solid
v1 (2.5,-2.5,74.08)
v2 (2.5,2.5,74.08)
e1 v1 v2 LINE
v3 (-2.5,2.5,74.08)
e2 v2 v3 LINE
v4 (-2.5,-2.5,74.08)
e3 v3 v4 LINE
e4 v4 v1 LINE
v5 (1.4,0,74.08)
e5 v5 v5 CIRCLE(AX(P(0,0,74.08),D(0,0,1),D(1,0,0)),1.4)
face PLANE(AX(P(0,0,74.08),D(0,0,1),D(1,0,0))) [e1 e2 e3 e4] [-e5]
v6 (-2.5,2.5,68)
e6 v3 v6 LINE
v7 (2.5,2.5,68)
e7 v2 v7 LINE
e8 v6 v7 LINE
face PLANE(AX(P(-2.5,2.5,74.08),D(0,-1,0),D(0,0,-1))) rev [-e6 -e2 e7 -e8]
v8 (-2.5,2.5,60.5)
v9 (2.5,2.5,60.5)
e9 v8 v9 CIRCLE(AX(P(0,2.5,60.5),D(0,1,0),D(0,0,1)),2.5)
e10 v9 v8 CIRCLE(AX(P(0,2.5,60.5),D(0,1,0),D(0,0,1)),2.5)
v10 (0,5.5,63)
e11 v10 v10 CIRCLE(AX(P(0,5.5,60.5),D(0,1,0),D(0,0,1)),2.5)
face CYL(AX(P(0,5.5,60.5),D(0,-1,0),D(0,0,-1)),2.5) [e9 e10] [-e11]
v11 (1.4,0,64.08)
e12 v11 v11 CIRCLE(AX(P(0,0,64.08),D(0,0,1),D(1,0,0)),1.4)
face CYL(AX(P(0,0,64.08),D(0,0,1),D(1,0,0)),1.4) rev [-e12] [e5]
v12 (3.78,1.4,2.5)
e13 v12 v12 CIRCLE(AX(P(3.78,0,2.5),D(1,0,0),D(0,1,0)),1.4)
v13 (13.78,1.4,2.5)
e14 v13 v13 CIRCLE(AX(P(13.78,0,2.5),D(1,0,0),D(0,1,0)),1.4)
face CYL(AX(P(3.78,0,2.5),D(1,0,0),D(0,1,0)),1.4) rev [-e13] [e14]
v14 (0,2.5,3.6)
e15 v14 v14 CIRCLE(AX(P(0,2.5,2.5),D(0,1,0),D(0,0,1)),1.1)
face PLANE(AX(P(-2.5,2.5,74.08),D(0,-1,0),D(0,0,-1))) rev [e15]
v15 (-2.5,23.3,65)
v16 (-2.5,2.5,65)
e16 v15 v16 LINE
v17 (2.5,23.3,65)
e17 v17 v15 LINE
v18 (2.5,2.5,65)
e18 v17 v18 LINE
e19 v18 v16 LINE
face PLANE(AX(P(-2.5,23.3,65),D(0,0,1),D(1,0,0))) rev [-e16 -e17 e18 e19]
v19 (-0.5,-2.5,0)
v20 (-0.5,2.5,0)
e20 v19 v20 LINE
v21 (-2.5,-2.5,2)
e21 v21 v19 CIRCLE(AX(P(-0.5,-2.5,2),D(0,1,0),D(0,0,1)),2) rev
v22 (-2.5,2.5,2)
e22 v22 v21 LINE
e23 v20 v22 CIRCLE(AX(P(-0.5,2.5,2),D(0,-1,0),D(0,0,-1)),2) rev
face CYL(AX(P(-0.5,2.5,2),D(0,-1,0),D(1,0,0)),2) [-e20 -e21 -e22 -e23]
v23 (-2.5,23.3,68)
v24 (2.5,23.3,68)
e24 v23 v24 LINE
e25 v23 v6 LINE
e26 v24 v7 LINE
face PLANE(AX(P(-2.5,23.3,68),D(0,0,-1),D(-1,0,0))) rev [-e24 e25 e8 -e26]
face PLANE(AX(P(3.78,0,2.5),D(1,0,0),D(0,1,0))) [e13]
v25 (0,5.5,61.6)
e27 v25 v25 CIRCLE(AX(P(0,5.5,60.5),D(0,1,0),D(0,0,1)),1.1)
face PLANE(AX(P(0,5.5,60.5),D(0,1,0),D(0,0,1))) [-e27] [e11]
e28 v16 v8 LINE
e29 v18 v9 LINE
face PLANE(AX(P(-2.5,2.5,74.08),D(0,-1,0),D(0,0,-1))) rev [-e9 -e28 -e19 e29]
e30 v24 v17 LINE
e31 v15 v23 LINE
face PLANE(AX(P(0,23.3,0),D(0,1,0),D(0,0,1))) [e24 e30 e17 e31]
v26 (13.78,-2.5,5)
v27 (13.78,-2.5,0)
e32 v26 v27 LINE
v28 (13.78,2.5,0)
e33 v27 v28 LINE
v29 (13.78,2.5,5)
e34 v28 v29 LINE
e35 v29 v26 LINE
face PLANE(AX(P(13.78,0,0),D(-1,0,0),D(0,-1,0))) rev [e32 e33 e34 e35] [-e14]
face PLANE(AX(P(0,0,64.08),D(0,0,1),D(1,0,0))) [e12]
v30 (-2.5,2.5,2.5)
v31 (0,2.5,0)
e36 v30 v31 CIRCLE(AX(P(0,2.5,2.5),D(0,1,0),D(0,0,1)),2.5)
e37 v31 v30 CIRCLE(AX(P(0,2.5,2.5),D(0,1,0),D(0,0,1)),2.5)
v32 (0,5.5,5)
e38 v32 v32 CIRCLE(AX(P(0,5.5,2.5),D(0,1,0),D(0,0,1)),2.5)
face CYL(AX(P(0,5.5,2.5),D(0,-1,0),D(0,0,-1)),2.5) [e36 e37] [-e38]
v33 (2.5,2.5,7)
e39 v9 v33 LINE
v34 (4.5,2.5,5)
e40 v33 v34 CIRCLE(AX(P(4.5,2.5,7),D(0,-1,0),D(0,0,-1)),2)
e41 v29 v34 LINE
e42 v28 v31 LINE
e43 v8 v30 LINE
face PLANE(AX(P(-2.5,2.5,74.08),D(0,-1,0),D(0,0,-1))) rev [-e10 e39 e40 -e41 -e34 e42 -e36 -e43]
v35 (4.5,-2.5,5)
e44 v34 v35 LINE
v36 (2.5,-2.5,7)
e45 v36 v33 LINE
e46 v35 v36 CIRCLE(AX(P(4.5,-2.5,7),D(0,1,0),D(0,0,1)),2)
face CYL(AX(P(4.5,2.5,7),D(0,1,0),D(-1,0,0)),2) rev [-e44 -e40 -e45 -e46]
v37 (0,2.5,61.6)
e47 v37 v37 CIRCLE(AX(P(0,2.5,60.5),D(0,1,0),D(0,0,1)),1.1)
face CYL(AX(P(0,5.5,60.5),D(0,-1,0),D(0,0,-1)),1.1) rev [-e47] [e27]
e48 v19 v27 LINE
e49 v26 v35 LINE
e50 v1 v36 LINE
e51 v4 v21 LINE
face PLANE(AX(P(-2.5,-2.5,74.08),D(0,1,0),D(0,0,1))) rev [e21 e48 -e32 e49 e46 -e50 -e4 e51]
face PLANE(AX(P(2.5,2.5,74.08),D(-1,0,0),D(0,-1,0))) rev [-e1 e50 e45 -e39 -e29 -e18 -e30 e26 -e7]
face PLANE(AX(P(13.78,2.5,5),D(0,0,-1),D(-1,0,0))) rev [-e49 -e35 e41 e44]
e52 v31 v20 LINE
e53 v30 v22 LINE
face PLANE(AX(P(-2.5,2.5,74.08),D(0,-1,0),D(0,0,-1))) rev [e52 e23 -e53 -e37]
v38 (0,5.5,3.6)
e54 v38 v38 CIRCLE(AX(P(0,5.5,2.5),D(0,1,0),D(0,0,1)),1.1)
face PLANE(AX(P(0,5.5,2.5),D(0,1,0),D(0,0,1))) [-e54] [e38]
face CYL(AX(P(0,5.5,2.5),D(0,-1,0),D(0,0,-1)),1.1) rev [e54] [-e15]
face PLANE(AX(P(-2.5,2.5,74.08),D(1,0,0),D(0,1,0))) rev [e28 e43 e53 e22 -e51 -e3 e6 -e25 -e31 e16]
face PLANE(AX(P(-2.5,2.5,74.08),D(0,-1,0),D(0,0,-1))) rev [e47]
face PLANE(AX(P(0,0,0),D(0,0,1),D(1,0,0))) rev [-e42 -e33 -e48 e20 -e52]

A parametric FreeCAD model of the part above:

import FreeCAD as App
import Part
import Sketcher


def edges_at(feature, points):
    """Names of the edges that pass closest to the given points."""
    edges = feature.Shape.Edges
    near = lambda p: min(range(len(edges)), key=lambda i: edges[i].distToShape(Part.Vertex(*p))[0])
    return sorted({f"Edge{near(p) + 1}" for p in points})


def add_polygon(sketch, points):
    """Adds a closed chain of lines whose ends are joined by coincident constraints."""
    first, n = sketch.GeometryCount, len(points)
    for a, b in zip(points, points[1:] + points[:1]):
        sketch.addGeometry(Part.LineSegment(App.Vector(*a, 0), App.Vector(*b, 0)), False)
    for i in range(n):
        sketch.addConstraint(Sketcher.Constraint("Coincident", first + i, 2, first + (i + 1) % n, 1))

doc = App.newDocument("Part")
body = doc.addObject("PartDesign::Body", "Body")

# Sketch on XY plane
sketch1 = body.newObject("Sketcher::SketchObject", "Sketch")
sketch1.AttachmentSupport = (doc.getObject("XY_Plane"), [""])
sketch1.MapMode = "FlatFace"
add_polygon(sketch1, [(-2.5, 2.5), (-2.5, -2.5), (2.5, -2.5), (2.5, 2.5)])  # lines 0-3
sketch1.addConstraint(Sketcher.Constraint("Vertical", 0))
sketch1.addConstraint(Sketcher.Constraint("Horizontal", 1))
sketch1.addConstraint(Sketcher.Constraint("Vertical", 2))
sketch1.addConstraint(Sketcher.Constraint("Horizontal", 3))
sketch1.addConstraint(Sketcher.Constraint("Symmetric", 0, 2, 2, 2, -1, 1))
sketch1.addConstraint(Sketcher.Constraint("Equal", 3, 0))
sketch1.addConstraint(Sketcher.Constraint("DistanceX", 1, 1, 1, 2, 5.0))
pad1 = body.newObject("PartDesign::Pad", "Pad")
pad1.Profile = sketch1
pad1.Length = 74.08

# Sketch on XY plane
sketch2 = body.newObject("Sketcher::SketchObject", "Sketch001")
sketch2.AttachmentSupport = (doc.getObject("XY_Plane"), [""])
sketch2.MapMode = "FlatFace"
sketch2.AttachmentOffset = App.Placement(App.Vector(0, 0, 74.08), App.Rotation())
sketch2.addGeometry(Part.Circle(App.Vector(0, 0, 0), App.Vector(0, 0, 1), 1.4), False)
sketch2.addConstraint(Sketcher.Constraint("Coincident", 0, 3, -1, 1))
sketch2.addConstraint(Sketcher.Constraint("Diameter", 0, 2.8))
pocket1 = body.newObject("PartDesign::Pocket", "Pocket")
pocket1.Profile = sketch2
pocket1.Length = 10

# Sketch on YZ plane
sketch3 = body.newObject("Sketcher::SketchObject", "Sketch002")
sketch3.AttachmentSupport = (doc.getObject("YZ_Plane"), [""])
sketch3.MapMode = "FlatFace"
sketch3.AttachmentOffset = App.Placement(App.Vector(0, 0, 2.5), App.Rotation())
add_polygon(sketch3, [(2.5, 5), (-2.5, 5), (-2.5, 0), (2.5, 0)])  # lines 0-3
sketch3.addConstraint(Sketcher.Constraint("Horizontal", 0))
sketch3.addConstraint(Sketcher.Constraint("Vertical", 1))
sketch3.addConstraint(Sketcher.Constraint("Horizontal", 2))
sketch3.addConstraint(Sketcher.Constraint("Vertical", 3))
sketch3.addConstraint(Sketcher.Constraint("Symmetric", 1, 2, 2, 2, -1, 1))
sketch3.addConstraint(Sketcher.Constraint("Equal", 2, 1))
sketch3.addConstraint(Sketcher.Constraint("DistanceX", 0, 2, 0, 1, 5.0))
pad2 = body.newObject("PartDesign::Pad", "Pad001")
pad2.Profile = sketch3
pad2.Length = 11.28

# Sketch on YZ plane
sketch4 = body.newObject("Sketcher::SketchObject", "Sketch003")
sketch4.AttachmentSupport = (doc.getObject("YZ_Plane"), [""])
sketch4.MapMode = "FlatFace"
sketch4.AttachmentOffset = App.Placement(App.Vector(0, 0, 13.78), App.Rotation())
sketch4.addGeometry(Part.Circle(App.Vector(0, 2.5, 0), App.Vector(0, 0, 1), 1.4), False)
sketch4.addConstraint(Sketcher.Constraint("PointOnObject", 0, 3, -2))
sketch4.addConstraint(Sketcher.Constraint("Diameter", 0, 2.8))
sketch4.addConstraint(Sketcher.Constraint("DistanceY", -1, 1, 0, 3, 2.5))
pocket2 = body.newObject("PartDesign::Pocket", "Pocket001")
pocket2.Profile = sketch4
pocket2.Length = 10

# Sketch on XZ plane
sketch5 = body.newObject("Sketcher::SketchObject", "Sketch004")
sketch5.AttachmentSupport = (doc.getObject("XZ_Plane"), [""])
sketch5.MapMode = "FlatFace"
sketch5.AttachmentOffset = App.Placement(App.Vector(0, 0, -2.5), App.Rotation())
sketch5.addGeometry(Part.Circle(App.Vector(0, 60.5, 0), App.Vector(0, 0, 1), 2.5), False)
sketch5.addGeometry(Part.Circle(App.Vector(0, 60.5, 0), App.Vector(0, 0, 1), 1.1), False)
sketch5.addGeometry(Part.Circle(App.Vector(0, 2.5, 0), App.Vector(0, 0, 1), 2.5), False)
sketch5.addGeometry(Part.Circle(App.Vector(0, 2.5, 0), App.Vector(0, 0, 1), 1.1), False)
sketch5.addConstraint(Sketcher.Constraint("Coincident", 1, 3, 0, 3))
sketch5.addConstraint(Sketcher.Constraint("Coincident", 3, 3, 2, 3))
sketch5.addConstraint(Sketcher.Constraint("Equal", 0, 2))
sketch5.addConstraint(Sketcher.Constraint("Equal", 1, 3))
sketch5.addConstraint(Sketcher.Constraint("PointOnObject", 0, 3, -2))
sketch5.addConstraint(Sketcher.Constraint("PointOnObject", 2, 3, -2))
sketch5.addConstraint(Sketcher.Constraint("Diameter", 0, 5.0))
sketch5.addConstraint(Sketcher.Constraint("Diameter", 1, 2.2))
sketch5.addConstraint(Sketcher.Constraint("DistanceY", 2, 3, 0, 3, 58.0))
sketch5.addConstraint(Sketcher.Constraint("DistanceY", -1, 1, 0, 3, 60.5))
pad3 = body.newObject("PartDesign::Pad", "Pad002")
pad3.Profile = sketch5
pad3.Length = 3
pad3.Reversed = True
doc.recompute()

fillet = body.newObject("PartDesign::Fillet", "Fillet")
fillet.Base = (pad3, edges_at(pad3, [(2.5, 0, 5), (-2.5, 0, 0)]))
fillet.Radius = 2

# Sketch on XZ plane
sketch6 = body.newObject("Sketcher::SketchObject", "Sketch005")
sketch6.AttachmentSupport = (doc.getObject("XZ_Plane"), [""])
sketch6.MapMode = "FlatFace"
sketch6.AttachmentOffset = App.Placement(App.Vector(0, 0, -2.5), App.Rotation())
add_polygon(sketch6, [(-2.5, 65), (-2.5, 68), (2.5, 68), (2.5, 65)])  # lines 0-3
sketch6.addConstraint(Sketcher.Constraint("Vertical", 0))
sketch6.addConstraint(Sketcher.Constraint("Horizontal", 1))
sketch6.addConstraint(Sketcher.Constraint("Vertical", 2))
sketch6.addConstraint(Sketcher.Constraint("Horizontal", 3))
sketch6.addConstraint(Sketcher.Constraint("DistanceX", 1, 1, 1, 2, 5.0))
sketch6.addConstraint(Sketcher.Constraint("DistanceY", 0, 1, 0, 2, 3.0))
sketch6.addConstraint(Sketcher.Constraint("DistanceY", -1, 1, 0, 2, 68.0))
sketch6.addConstraint(Sketcher.Constraint("DistanceX", 0, 2, -1, 1, 2.5))
pad4 = body.newObject("PartDesign::Pad", "Pad003")
pad4.Profile = sketch6
pad4.Length = 20.8
pad4.Reversed = True

doc.recompute()
